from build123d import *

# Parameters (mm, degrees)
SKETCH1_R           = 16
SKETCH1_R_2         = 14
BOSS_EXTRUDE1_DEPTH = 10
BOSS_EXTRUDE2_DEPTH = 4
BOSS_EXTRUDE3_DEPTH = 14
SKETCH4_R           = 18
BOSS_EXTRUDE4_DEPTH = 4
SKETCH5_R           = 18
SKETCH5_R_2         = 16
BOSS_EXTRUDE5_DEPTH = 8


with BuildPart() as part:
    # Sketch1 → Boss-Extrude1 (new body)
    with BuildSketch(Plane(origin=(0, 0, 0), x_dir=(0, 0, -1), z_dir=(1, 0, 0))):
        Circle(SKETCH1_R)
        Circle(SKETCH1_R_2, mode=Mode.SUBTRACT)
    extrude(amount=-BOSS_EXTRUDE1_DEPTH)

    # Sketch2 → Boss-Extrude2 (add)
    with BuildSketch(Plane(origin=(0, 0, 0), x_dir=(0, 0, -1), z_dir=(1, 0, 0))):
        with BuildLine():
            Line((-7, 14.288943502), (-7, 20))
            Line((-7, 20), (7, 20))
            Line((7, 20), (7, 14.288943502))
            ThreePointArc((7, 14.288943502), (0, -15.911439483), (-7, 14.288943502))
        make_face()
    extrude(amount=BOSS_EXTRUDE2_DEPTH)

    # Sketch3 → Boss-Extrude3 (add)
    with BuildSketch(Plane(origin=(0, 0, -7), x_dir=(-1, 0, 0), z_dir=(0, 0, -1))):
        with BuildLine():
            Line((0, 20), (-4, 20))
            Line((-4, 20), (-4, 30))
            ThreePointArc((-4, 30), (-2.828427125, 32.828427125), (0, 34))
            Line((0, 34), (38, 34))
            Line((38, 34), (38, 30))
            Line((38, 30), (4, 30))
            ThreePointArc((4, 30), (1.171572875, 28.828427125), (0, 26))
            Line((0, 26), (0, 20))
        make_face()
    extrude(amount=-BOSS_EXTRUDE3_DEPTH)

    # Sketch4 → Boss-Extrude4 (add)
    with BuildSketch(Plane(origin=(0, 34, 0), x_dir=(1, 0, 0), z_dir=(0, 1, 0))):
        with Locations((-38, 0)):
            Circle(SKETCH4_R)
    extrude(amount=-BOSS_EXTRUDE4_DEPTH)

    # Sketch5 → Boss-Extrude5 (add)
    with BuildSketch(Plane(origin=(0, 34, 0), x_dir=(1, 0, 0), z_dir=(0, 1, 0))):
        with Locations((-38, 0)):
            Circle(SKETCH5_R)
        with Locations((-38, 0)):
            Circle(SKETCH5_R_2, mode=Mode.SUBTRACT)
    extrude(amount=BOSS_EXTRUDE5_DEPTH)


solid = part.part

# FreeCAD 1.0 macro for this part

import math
import FreeCAD as App
import Part
import Sketcher
from FreeCAD import Vector
Q = App.Units.Quantity

doc = App.newDocument("Part")
body = doc.addObject("PartDesign::Body", "Body")

# Sketch on YZ plane
sketch1 = body.newObject("Sketcher::SketchObject", "Sketch")
sketch1.AttachmentSupport = (doc.getObject("YZ_Plane"), [""])
sketch1.MapMode = "FlatFace"
sketch1.addGeometry([
    Part.Circle(Vector(0, 0, 0), Vector(0, 0, 1), 16),
    Part.Circle(Vector(0, 0, 0), Vector(0, 0, 1), 14),
], False)
sketch1.addConstraint([
    Sketcher.Constraint("Coincident", 0, 3, -1, 1),
    Sketcher.Constraint("Coincident", 1, 3, -1, 1),
    Sketcher.Constraint("Diameter", 0, Q("32 mm")),
    Sketcher.Constraint("Diameter", 1, Q("28 mm")),
])
pad1 = body.newObject("PartDesign::Pad", "Pad")
pad1.Profile = sketch1
pad1.Length = 10
pad1.Reversed = True

# Sketch on YZ plane
sketch2 = body.newObject("Sketcher::SketchObject", "Sketch001")
sketch2.AttachmentSupport = (doc.getObject("YZ_Plane"), [""])
sketch2.MapMode = "FlatFace"
sketch2.addGeometry([
    Part.LineSegment(Vector(20, 7, 0), Vector(14, 7, 0)),
    Part.ArcOfCircle(Part.Circle(Vector(0, 0, 0), Vector(0, 0, 1), 16), math.radians(26), math.radians(334)),
    Part.LineSegment(Vector(14, -7, 0), Vector(20, -7, 0)),
    Part.LineSegment(Vector(20, -7, 0), Vector(20, 7, 0)),
], False)
sketch2.addConstraint([
    Sketcher.Constraint("Coincident", 0, 2, 1, 1),
    Sketcher.Constraint("Coincident", 1, 2, 2, 1),
    Sketcher.Constraint("Coincident", 2, 2, 3, 1),
    Sketcher.Constraint("Coincident", 3, 2, 0, 1),
    Sketcher.Constraint("Horizontal", 0),
    Sketcher.Constraint("Horizontal", 2),
    Sketcher.Constraint("Vertical", 3),
    Sketcher.Constraint("Coincident", 1, 3, -1, 1),
    Sketcher.Constraint("Vertical", 0, 2, 1, 2),
    Sketcher.Constraint("DistanceY", 3, 1, 3, 2, Q("14 mm")),
    Sketcher.Constraint("DistanceX", -1, 1, 2, 2, Q("20 mm")),
    Sketcher.Constraint("Radius", 1, Q("15.911439 mm")),
])
pad2 = body.newObject("PartDesign::Pad", "Pad001")
pad2.Profile = sketch2
pad2.Length = 4

# Sketch on XY plane
sketch3 = body.newObject("Sketcher::SketchObject", "Sketch002")
sketch3.AttachmentSupport = (doc.getObject("XY_Plane"), [""])
sketch3.MapMode = "FlatFace"
sketch3.AttachmentOffset = App.Placement(Vector(0, 0, -7), App.Rotation())
sketch3.addGeometry([
    Part.LineSegment(Vector(4, 20, 0), Vector(0, 20, 0)),  # 0
    Part.LineSegment(Vector(0, 20, 0), Vector(0, 26, 0)),  # 1
    Part.ArcOfCircle(Part.Circle(Vector(-4, 26, 0), Vector(0, 0, 1), 4), math.radians(0), math.radians(90)),  # 2
    Part.LineSegment(Vector(-4, 30, 0), Vector(-38, 30, 0)),  # 3
    Part.LineSegment(Vector(-38, 30, 0), Vector(-38, 34, 0)),  # 4
    Part.LineSegment(Vector(-38, 34, 0), Vector(0, 34, 0)),  # 5
    Part.ArcOfCircle(Part.Circle(Vector(0, 30, 0), Vector(0, 0, 1), 4), math.radians(0), math.radians(90)),  # 6
    Part.LineSegment(Vector(4, 30, 0), Vector(4, 20, 0)),  # 7
], False)
sketch3.addConstraint([
    Sketcher.Constraint("Coincident", 0, 2, 1, 1),
    Sketcher.Constraint("Tangent", 1, 2, 2, 1),
    Sketcher.Constraint("Tangent", 2, 2, 3, 1),
    Sketcher.Constraint("Coincident", 3, 2, 4, 1),
    Sketcher.Constraint("Coincident", 4, 2, 5, 1),
    Sketcher.Constraint("Tangent", 5, 2, 6, 2),
    Sketcher.Constraint("Tangent", 6, 1, 7, 1),
    Sketcher.Constraint("Coincident", 7, 2, 0, 1),
    Sketcher.Constraint("Horizontal", 0),
    Sketcher.Constraint("Vertical", 1),
    Sketcher.Constraint("Horizontal", 3),
    Sketcher.Constraint("Vertical", 4),
    Sketcher.Constraint("Horizontal", 5),
    Sketcher.Constraint("Vertical", 7),
    Sketcher.Constraint("Equal", 2, 6),
    Sketcher.Constraint("Symmetric", 2, 2, 6, 1, -2),
    Sketcher.Constraint("PointOnObject", 6, 3, -2),
    Sketcher.Constraint("Radius", 2, Q("4 mm")),
    Sketcher.Constraint("DistanceX", 3, 2, 3, 1, Q("34 mm")),
    Sketcher.Constraint("DistanceY", 1, 1, 1, 2, Q("6 mm")),
    Sketcher.Constraint("DistanceY", -1, 1, 2, 3, Q("26 mm")),
])
pad3 = body.newObject("PartDesign::Pad", "Pad002")
pad3.Profile = sketch3
pad3.Length = 14

# Sketch on XZ plane
sketch4 = body.newObject("Sketcher::SketchObject", "Sketch003")
sketch4.AttachmentSupport = (doc.getObject("XZ_Plane"), [""])
sketch4.MapMode = "FlatFace"
sketch4.AttachmentOffset = App.Placement(Vector(0, 0, -34), App.Rotation())
sketch4.addGeometry(Part.Circle(Vector(-38, 0, 0), Vector(0, 0, 1), 18), False)
sketch4.addConstraint([
    Sketcher.Constraint("PointOnObject", 0, 3, -1),
    Sketcher.Constraint("Diameter", 0, Q("36 mm")),
    Sketcher.Constraint("DistanceX", 0, 3, -1, 1, Q("38 mm")),
])
pad4 = body.newObject("PartDesign::Pad", "Pad003")
pad4.Profile = sketch4
pad4.Length = 4

# Sketch on XZ plane
sketch5 = body.newObject("Sketcher::SketchObject", "Sketch004")
sketch5.AttachmentSupport = (doc.getObject("XZ_Plane"), [""])
sketch5.MapMode = "FlatFace"
sketch5.AttachmentOffset = App.Placement(Vector(0, 0, -34), App.Rotation())
sketch5.addGeometry([
    Part.Circle(Vector(-38, 0, 0), Vector(0, 0, 1), 18),
    Part.Circle(Vector(-38, 0, 0), Vector(0, 0, 1), 16),
], False)
sketch5.addConstraint([
    Sketcher.Constraint("Coincident", 1, 3, 0, 3),
    Sketcher.Constraint("PointOnObject", 0, 3, -1),
    Sketcher.Constraint("Diameter", 0, Q("36 mm")),
    Sketcher.Constraint("Diameter", 1, Q("32 mm")),
    Sketcher.Constraint("DistanceX", 0, 3, -1, 1, Q("38 mm")),
])
pad5 = body.newObject("PartDesign::Pad", "Pad004")
pad5.Profile = sketch5
pad5.Length = 8
pad5.Reversed = True

doc.recompute()
